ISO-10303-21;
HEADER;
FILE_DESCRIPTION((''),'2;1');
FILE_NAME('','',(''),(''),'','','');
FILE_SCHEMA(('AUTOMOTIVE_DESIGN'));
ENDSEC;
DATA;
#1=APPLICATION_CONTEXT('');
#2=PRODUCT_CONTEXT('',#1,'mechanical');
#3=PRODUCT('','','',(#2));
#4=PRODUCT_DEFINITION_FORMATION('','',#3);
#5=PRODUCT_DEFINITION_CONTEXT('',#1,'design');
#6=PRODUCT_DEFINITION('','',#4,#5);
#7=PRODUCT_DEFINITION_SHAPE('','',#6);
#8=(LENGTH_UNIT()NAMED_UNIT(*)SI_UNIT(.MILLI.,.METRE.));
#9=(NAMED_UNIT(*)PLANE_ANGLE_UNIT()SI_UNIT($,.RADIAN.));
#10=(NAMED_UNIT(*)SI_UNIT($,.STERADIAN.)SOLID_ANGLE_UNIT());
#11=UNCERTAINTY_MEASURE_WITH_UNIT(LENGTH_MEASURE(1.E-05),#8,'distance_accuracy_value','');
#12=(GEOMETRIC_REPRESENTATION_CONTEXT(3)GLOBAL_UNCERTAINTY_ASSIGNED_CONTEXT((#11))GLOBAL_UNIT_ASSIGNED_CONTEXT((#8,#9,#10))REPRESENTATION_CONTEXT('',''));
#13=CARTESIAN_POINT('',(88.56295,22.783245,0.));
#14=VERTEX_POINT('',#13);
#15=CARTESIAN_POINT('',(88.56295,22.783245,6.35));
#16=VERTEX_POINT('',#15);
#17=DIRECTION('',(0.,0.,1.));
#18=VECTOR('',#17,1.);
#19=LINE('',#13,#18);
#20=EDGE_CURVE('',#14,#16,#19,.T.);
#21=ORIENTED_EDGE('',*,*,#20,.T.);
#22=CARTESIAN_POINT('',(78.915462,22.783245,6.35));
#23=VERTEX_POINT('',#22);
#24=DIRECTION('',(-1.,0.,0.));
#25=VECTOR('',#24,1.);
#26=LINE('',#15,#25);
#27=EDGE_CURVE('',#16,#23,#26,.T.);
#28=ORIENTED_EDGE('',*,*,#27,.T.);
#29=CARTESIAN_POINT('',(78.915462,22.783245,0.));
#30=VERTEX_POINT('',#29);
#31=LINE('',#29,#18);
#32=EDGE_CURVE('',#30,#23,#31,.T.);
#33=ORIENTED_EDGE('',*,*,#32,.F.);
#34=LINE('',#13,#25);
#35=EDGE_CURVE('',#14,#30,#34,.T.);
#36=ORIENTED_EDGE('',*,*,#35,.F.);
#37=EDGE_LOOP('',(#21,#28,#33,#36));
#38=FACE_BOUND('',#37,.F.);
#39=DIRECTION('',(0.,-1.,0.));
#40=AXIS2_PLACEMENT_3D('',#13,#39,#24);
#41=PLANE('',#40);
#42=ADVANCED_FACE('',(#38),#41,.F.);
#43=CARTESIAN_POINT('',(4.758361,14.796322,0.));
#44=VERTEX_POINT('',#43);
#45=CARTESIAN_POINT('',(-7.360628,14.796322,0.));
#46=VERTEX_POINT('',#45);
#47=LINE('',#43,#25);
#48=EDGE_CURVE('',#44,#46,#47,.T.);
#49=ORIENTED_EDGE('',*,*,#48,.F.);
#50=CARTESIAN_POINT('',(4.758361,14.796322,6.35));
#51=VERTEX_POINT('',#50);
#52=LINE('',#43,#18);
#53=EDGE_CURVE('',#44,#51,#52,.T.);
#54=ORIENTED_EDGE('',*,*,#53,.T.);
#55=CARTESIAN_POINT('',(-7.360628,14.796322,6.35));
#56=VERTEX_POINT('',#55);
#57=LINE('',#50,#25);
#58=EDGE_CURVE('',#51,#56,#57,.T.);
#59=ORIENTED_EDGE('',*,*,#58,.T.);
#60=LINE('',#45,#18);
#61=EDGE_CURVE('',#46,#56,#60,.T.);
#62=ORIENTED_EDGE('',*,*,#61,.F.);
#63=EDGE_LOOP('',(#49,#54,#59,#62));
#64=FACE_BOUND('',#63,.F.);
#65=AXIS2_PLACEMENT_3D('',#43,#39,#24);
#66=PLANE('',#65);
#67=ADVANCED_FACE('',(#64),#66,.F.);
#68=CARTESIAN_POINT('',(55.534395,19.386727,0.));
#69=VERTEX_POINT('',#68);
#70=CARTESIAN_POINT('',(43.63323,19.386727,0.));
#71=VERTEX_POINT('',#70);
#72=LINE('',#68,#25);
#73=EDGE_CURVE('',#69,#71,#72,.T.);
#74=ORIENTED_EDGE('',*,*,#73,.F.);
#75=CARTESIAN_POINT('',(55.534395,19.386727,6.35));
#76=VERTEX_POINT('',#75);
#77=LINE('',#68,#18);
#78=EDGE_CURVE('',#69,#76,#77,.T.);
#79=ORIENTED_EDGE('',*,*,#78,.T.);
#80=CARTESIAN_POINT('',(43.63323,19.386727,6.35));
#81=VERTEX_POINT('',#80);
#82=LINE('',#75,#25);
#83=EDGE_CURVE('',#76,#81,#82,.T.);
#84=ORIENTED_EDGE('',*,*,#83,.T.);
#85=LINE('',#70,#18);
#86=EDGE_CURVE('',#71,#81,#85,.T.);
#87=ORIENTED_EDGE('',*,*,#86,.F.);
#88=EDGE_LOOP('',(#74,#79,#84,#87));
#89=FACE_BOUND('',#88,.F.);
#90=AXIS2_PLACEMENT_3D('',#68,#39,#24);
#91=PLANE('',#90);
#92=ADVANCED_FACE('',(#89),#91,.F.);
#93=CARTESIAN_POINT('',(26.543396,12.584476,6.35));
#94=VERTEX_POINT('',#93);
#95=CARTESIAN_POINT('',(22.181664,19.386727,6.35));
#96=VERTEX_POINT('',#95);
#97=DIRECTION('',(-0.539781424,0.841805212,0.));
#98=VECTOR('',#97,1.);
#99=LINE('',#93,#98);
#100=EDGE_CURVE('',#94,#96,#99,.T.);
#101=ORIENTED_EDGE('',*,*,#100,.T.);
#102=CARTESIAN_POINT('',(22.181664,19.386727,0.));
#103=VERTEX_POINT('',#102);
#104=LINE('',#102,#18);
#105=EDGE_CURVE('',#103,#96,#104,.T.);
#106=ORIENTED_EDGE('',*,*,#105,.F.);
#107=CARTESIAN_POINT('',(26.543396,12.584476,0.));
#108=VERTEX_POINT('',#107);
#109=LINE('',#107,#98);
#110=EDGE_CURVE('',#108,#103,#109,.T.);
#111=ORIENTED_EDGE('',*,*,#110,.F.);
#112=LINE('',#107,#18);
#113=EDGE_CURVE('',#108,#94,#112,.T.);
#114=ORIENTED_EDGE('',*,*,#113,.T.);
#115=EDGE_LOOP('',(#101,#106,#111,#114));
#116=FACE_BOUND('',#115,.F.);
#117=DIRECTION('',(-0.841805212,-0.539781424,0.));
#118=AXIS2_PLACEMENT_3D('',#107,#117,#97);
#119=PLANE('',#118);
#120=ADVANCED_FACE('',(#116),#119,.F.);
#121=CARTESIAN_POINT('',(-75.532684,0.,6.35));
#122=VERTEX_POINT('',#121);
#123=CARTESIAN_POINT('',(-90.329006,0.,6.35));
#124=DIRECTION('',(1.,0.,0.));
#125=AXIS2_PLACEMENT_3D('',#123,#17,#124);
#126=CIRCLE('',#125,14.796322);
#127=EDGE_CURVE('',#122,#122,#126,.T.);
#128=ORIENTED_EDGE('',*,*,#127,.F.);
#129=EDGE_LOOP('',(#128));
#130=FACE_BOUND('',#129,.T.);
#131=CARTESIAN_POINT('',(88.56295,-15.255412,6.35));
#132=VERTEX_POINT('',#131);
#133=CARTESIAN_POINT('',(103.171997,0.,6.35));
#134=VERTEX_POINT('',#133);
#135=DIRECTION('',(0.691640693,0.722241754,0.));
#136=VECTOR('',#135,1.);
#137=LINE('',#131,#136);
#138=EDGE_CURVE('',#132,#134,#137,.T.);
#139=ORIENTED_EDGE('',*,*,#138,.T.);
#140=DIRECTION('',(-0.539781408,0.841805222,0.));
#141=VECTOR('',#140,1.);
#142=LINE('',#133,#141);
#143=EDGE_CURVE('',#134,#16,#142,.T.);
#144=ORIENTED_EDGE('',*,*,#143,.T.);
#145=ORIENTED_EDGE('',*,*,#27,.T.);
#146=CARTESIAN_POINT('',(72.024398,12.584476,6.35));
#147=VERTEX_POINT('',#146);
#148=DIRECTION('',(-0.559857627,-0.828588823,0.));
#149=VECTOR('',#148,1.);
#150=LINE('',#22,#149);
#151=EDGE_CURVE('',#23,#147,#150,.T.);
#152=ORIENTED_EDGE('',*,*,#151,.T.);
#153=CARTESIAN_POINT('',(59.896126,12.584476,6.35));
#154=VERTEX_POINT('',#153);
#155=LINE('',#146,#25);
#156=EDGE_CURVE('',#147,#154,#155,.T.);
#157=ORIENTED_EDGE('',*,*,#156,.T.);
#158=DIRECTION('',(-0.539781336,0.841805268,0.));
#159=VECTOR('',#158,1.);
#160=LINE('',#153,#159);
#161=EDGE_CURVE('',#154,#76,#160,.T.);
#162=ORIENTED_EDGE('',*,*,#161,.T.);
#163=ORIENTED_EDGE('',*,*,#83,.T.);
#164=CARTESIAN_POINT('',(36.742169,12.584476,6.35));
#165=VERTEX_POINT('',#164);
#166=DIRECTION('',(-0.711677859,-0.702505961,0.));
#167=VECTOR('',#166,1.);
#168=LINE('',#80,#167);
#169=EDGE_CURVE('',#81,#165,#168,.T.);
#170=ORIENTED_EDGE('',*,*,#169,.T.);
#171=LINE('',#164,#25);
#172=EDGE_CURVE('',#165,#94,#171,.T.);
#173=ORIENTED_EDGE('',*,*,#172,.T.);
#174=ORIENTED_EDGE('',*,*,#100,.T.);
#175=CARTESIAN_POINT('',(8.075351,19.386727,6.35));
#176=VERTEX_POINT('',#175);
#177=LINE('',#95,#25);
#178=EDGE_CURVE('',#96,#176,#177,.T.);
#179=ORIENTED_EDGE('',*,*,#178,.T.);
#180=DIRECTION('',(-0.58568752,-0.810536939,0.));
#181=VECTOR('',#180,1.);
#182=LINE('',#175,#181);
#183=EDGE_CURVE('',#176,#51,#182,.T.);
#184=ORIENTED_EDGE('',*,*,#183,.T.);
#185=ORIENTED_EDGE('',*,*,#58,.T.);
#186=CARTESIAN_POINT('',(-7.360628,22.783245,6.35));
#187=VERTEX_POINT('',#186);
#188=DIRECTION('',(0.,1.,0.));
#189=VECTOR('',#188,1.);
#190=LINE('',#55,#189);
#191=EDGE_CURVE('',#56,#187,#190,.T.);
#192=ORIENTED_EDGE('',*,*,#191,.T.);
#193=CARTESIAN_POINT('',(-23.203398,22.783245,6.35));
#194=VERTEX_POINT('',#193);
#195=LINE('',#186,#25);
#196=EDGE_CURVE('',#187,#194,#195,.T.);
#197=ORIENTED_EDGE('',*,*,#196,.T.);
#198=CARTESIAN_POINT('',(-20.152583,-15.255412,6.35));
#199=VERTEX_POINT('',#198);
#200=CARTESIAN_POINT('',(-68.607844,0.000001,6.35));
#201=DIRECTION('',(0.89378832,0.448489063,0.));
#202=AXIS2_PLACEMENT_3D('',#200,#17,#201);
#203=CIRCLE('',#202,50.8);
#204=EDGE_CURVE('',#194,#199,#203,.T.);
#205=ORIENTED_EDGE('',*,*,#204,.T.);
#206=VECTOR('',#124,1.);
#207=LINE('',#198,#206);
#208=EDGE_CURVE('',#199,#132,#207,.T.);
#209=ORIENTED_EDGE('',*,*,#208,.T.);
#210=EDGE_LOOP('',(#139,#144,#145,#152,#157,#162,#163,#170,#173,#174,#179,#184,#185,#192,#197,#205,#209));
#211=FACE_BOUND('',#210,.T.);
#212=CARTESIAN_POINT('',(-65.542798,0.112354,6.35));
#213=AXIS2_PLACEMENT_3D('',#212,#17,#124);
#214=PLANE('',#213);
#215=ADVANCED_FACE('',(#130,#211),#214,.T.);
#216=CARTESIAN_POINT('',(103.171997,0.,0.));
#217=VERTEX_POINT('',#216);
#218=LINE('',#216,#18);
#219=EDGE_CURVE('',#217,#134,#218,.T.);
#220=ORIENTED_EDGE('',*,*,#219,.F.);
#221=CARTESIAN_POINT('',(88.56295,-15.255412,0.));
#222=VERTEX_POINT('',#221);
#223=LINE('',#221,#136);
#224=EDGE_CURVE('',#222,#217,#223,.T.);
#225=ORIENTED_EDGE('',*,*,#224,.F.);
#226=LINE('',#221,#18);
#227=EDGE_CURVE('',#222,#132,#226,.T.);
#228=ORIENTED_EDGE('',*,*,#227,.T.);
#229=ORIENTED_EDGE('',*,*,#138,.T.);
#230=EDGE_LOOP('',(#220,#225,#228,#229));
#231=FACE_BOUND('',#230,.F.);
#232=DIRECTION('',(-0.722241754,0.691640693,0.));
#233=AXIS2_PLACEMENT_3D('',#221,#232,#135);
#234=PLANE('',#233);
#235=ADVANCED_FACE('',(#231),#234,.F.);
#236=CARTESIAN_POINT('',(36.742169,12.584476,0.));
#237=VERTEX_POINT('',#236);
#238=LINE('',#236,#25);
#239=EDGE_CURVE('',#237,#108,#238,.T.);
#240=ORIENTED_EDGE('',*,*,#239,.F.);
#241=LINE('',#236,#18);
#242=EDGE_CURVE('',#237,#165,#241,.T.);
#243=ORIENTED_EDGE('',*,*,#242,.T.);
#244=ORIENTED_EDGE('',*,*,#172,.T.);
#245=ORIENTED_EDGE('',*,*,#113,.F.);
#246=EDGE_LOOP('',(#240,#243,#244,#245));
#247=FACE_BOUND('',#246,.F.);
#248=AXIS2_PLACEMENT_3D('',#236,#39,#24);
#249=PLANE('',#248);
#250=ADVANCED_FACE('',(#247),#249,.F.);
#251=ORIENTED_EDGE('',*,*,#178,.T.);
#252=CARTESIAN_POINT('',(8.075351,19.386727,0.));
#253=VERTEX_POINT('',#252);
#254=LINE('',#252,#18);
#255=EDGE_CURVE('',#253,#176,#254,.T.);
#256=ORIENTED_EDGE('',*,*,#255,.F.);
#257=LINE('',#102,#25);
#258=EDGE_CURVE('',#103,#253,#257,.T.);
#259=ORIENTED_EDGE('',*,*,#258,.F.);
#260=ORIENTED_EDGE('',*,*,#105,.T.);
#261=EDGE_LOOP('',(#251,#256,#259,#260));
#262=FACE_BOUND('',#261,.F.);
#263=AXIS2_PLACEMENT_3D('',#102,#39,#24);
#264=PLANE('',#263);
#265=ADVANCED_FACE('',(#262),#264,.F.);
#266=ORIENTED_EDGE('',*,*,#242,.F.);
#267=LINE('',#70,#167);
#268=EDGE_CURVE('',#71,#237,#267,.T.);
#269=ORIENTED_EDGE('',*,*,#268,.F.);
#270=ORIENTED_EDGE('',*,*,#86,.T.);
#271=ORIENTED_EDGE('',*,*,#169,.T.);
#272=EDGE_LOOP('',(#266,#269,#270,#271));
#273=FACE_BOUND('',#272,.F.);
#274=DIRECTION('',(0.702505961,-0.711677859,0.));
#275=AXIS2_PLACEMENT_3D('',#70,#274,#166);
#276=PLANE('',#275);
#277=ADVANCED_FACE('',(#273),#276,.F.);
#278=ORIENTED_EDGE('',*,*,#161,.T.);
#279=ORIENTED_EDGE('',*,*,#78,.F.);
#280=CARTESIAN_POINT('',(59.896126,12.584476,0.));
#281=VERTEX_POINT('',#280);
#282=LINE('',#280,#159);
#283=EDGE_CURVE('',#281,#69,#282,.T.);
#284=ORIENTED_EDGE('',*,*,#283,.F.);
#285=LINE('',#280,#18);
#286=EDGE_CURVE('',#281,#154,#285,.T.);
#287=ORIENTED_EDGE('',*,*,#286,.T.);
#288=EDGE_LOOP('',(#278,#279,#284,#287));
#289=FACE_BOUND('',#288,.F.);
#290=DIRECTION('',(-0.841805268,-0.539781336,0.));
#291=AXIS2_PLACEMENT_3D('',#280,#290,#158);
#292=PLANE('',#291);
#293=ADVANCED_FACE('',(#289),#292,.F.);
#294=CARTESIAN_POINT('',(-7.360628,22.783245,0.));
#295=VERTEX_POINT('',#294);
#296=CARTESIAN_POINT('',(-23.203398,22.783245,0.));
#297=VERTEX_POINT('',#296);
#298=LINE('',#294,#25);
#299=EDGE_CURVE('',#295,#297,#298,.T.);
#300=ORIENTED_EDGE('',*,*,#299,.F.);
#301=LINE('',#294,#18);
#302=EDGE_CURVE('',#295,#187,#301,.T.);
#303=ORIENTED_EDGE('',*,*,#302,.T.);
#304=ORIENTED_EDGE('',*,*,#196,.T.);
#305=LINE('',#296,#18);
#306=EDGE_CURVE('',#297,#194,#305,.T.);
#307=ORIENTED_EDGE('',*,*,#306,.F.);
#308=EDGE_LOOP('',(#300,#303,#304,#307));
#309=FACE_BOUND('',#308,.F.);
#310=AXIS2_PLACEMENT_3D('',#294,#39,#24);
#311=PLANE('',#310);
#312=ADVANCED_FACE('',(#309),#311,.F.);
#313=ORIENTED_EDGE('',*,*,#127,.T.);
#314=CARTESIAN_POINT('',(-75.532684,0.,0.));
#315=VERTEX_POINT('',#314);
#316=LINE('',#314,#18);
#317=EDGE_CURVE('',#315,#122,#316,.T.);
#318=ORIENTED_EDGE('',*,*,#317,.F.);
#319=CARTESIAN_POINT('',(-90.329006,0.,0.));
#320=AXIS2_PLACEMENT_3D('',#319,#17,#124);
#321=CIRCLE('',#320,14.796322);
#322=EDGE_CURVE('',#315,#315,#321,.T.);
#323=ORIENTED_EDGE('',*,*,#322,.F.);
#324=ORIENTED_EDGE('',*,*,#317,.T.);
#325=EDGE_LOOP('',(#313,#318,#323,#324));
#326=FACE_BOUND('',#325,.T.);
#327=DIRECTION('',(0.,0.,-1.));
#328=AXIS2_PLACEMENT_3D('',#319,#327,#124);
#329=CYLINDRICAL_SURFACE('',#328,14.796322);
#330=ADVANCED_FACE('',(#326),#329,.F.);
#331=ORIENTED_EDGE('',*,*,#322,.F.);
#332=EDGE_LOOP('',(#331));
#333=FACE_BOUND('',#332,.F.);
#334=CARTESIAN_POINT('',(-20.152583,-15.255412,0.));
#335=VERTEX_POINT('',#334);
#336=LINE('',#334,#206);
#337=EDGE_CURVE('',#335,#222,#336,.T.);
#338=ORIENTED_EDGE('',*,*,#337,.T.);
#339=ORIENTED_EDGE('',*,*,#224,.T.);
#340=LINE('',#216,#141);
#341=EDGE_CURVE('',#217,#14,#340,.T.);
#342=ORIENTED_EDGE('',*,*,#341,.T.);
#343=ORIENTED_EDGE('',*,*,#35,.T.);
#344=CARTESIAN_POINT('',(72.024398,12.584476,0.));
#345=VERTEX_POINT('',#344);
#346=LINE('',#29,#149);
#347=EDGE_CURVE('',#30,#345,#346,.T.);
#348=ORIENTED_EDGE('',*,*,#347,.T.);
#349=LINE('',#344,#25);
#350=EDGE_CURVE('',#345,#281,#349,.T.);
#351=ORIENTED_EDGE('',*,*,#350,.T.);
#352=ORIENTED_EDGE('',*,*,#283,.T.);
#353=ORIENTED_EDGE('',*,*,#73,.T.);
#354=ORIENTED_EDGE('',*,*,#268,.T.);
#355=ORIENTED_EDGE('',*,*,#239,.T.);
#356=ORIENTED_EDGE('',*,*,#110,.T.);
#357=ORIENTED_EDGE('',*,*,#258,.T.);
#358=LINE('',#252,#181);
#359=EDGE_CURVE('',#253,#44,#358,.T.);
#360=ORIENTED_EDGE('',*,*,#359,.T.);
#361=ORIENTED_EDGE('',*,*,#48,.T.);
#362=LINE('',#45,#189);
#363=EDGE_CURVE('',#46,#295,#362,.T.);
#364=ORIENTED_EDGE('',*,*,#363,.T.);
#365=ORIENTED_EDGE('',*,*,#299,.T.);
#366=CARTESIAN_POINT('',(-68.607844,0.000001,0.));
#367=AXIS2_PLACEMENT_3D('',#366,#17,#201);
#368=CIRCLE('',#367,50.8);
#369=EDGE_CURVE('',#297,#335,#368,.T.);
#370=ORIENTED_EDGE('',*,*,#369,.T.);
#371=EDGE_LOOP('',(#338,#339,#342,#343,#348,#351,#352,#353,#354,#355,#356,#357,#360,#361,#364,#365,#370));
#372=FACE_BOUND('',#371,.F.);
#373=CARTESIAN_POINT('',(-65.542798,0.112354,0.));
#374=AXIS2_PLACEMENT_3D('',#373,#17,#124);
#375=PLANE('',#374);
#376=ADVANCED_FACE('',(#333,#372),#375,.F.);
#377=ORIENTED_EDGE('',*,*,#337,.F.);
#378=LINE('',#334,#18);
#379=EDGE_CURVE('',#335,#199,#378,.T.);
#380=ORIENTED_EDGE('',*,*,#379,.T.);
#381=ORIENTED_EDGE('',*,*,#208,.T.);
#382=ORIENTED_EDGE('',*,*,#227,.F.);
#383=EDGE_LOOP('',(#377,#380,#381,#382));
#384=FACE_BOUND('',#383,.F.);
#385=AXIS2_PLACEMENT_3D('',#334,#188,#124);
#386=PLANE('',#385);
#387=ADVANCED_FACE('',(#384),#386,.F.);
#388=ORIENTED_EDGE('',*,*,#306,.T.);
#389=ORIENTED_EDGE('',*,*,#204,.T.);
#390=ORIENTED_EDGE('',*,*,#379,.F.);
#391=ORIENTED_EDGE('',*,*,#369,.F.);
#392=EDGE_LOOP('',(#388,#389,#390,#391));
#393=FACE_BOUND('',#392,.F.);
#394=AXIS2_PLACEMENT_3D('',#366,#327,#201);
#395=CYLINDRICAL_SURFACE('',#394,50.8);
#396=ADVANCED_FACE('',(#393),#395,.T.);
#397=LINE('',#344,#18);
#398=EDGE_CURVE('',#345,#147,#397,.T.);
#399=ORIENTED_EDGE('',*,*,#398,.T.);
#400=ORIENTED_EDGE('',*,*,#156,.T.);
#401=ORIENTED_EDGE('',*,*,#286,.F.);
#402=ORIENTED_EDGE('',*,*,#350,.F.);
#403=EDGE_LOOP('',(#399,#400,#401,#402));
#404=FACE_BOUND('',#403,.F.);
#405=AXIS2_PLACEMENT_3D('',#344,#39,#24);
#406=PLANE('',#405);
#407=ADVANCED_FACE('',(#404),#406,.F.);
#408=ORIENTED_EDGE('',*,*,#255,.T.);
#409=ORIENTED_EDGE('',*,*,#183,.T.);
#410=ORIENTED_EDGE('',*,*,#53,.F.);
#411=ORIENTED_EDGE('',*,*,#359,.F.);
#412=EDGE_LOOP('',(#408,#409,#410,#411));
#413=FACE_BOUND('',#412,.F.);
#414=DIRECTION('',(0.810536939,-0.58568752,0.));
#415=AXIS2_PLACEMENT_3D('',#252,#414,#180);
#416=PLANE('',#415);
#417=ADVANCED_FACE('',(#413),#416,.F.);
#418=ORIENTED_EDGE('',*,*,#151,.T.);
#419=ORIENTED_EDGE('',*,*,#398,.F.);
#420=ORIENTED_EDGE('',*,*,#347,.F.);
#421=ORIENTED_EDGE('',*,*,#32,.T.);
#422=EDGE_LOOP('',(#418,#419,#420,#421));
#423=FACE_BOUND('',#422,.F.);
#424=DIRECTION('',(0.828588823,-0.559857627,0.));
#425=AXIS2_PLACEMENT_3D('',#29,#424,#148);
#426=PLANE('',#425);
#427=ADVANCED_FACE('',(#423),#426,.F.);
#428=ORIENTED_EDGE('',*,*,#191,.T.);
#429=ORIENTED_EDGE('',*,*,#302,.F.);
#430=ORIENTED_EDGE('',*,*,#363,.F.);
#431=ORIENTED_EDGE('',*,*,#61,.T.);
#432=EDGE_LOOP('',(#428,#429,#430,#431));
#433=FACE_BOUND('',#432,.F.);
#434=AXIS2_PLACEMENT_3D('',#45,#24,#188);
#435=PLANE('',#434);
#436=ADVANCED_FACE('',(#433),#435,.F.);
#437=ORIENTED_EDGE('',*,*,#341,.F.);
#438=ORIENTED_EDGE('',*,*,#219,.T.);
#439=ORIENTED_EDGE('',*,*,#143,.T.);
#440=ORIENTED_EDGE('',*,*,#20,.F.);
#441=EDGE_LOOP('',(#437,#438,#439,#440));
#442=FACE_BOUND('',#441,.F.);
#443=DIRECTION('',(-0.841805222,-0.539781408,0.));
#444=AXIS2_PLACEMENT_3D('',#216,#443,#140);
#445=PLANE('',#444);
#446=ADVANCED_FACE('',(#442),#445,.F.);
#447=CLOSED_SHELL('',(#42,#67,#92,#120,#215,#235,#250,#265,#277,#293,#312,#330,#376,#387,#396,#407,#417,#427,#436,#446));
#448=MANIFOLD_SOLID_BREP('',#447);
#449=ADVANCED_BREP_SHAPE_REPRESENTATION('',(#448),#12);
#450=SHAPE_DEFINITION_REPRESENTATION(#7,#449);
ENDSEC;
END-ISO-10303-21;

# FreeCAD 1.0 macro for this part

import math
import FreeCAD as App
import Part
import Sketcher
Q = App.Units.Quantity

doc = App.newDocument("Part")
body = doc.addObject("PartDesign::Body", "Body")

# Sketch on XY plane
sketch1 = body.newObject("Sketcher::SketchObject", "Sketch")
sketch1.AttachmentSupport = (doc.getObject("XY_Plane"), [""])
sketch1.MapMode = "FlatFace"
sketch1.addGeometry([
    Part.ArcOfCircle(Part.Circle(App.Vector(-69, 0, 0), App.Vector(0, 0, 1), 51), math.radians(27), math.radians(343)),  # 0
    Part.LineSegment(App.Vector(-20, -15, 0), App.Vector(89, -15, 0)),  # 1
    Part.LineSegment(App.Vector(89, -15, 0), App.Vector(103, 0, 0)),  # 2
    Part.LineSegment(App.Vector(103, 0, 0), App.Vector(89, 23, 0)),  # 3
    Part.LineSegment(App.Vector(89, 23, 0), App.Vector(79, 23, 0)),  # 4
    Part.LineSegment(App.Vector(79, 23, 0), App.Vector(72, 13, 0)),  # 5
    Part.LineSegment(App.Vector(72, 13, 0), App.Vector(60, 13, 0)),  # 6
    Part.LineSegment(App.Vector(60, 13, 0), App.Vector(56, 19, 0)),  # 7
    Part.LineSegment(App.Vector(56, 19, 0), App.Vector(44, 19, 0)),  # 8
    Part.LineSegment(App.Vector(44, 19, 0), App.Vector(37, 13, 0)),  # 9
    Part.LineSegment(App.Vector(37, 13, 0), App.Vector(27, 13, 0)),  # 10
    Part.LineSegment(App.Vector(27, 13, 0), App.Vector(22, 19, 0)),  # 11
    Part.LineSegment(App.Vector(22, 19, 0), App.Vector(8, 19, 0)),  # 12
    Part.LineSegment(App.Vector(8, 19, 0), App.Vector(5, 15, 0)),  # 13
    Part.LineSegment(App.Vector(5, 15, 0), App.Vector(-7, 15, 0)),  # 14
    Part.LineSegment(App.Vector(-7, 15, 0), App.Vector(-7, 23, 0)),  # 15
    Part.LineSegment(App.Vector(-7, 23, 0), App.Vector(-23, 23, 0)),  # 16
    Part.Circle(App.Vector(-90, 0, 0), App.Vector(0, 0, 1), 15),  # 17
], False)
sketch1.addConstraint([
    Sketcher.Constraint("Coincident", 0, 2, 1, 1),
    Sketcher.Constraint("Coincident", 1, 2, 2, 1),
    Sketcher.Constraint("Coincident", 2, 2, 3, 1),
    Sketcher.Constraint("Coincident", 3, 2, 4, 1),
    Sketcher.Constraint("Coincident", 4, 2, 5, 1),
    Sketcher.Constraint("Coincident", 5, 2, 6, 1),
    Sketcher.Constraint("Coincident", 6, 2, 7, 1),
    Sketcher.Constraint("Coincident", 7, 2, 8, 1),
    Sketcher.Constraint("Coincident", 8, 2, 9, 1),
    Sketcher.Constraint("Coincident", 9, 2, 10, 1),
    Sketcher.Constraint("Coincident", 10, 2, 11, 1),
    Sketcher.Constraint("Coincident", 11, 2, 12, 1),
    Sketcher.Constraint("Coincident", 12, 2, 13, 1),
    Sketcher.Constraint("Coincident", 13, 2, 14, 1),
    Sketcher.Constraint("Coincident", 14, 2, 15, 1),
    Sketcher.Constraint("Coincident", 15, 2, 16, 1),
    Sketcher.Constraint("Coincident", 16, 2, 0, 1),
    Sketcher.Constraint("Horizontal", 1),
    Sketcher.Constraint("Horizontal", 4),
    Sketcher.Constraint("Horizontal", 6),
    Sketcher.Constraint("Horizontal", 8),
    Sketcher.Constraint("Horizontal", 10),
    Sketcher.Constraint("Horizontal", 12),
    Sketcher.Constraint("Horizontal", 14),
    Sketcher.Constraint("Vertical", 15),
    Sketcher.Constraint("Horizontal", 16),
    Sketcher.Constraint("PointOnObject", 0, 3, -1),
    Sketcher.Constraint("PointOnObject", 17, 3, -1),
    Sketcher.Constraint("PointOnObject", 2, 2, -1),
    Sketcher.Constraint("Parallel", 3, 7),
    Sketcher.Constraint("Parallel", 7, 11),
    Sketcher.Constraint("Horizontal", 6, 2, 9, 2),
    Sketcher.Constraint("Horizontal", 8, 2, 11, 2),
    Sketcher.Constraint("Horizontal", 4, 2, 15, 2),
    Sketcher.Constraint("Vertical", 1, 2, 3, 2),
    Sketcher.Constraint("Radius", 0, Q("2 in")),
    Sketcher.Constraint("Diameter", 17, Q("29.592644 mm")),
    Sketcher.Constraint("Distance", 5, Q("12.308601 mm")),
    Sketcher.Constraint("DistanceX", 14, 2, 14, 1, Q("12.118989 mm")),
    Sketcher.Constraint("DistanceX", 16, 2, 16, 1, Q("15.84277 mm")),
    Sketcher.Constraint("DistanceX", -1, 1, 5, 2, Q("72.024398 mm")),
    Sketcher.Constraint("DistanceX", 16, 2, -1, 1, Q("23.203398 mm")),
    Sketcher.Constraint("DistanceX", 5, 2, 2, 2, Q("31.147599 mm")),
    Sketcher.Constraint("DistanceX", 10, 2, 7, 2, Q("28.990999 mm")),
    Sketcher.Constraint("Distance", 7, Q("8.080552 mm")),
    Sketcher.Constraint("DistanceX", 1, 1, 1, 2, Q("108.715533 mm")),
    Sketcher.Constraint("DistanceX", 4, 2, 4, 1, Q("9.647488 mm")),
    Sketcher.Constraint("DistanceX", 6, 2, 6, 1, Q("12.128272 mm")),
    Sketcher.Constraint("DistanceX", 8, 2, 8, 1, Q("11.901165 mm")),
    Sketcher.Constraint("DistanceX", 10, 2, 10, 1, Q("10.198773 mm")),
    Sketcher.Constraint("DistanceX", 12, 2, 12, 1, Q("14.106313 mm")),
    Sketcher.Constraint("DistanceY", 15, 1, 15, 2, Q("7.986923 mm")),
    Sketcher.Constraint("DistanceX", -1, 1, 1, 2, Q("88.56295 mm")),
    Sketcher.Constraint("DistanceX", -1, 1, 8, 2, Q("43.63323 mm")),
    Sketcher.Constraint("DistanceX", 17, 3, 0, 3, Q("21.721162 mm")),
])
pad1 = body.newObject("PartDesign::Pad", "Pad")
pad1.Profile = sketch1
pad1.Length = Q("0.25 in")

doc.recompute()
